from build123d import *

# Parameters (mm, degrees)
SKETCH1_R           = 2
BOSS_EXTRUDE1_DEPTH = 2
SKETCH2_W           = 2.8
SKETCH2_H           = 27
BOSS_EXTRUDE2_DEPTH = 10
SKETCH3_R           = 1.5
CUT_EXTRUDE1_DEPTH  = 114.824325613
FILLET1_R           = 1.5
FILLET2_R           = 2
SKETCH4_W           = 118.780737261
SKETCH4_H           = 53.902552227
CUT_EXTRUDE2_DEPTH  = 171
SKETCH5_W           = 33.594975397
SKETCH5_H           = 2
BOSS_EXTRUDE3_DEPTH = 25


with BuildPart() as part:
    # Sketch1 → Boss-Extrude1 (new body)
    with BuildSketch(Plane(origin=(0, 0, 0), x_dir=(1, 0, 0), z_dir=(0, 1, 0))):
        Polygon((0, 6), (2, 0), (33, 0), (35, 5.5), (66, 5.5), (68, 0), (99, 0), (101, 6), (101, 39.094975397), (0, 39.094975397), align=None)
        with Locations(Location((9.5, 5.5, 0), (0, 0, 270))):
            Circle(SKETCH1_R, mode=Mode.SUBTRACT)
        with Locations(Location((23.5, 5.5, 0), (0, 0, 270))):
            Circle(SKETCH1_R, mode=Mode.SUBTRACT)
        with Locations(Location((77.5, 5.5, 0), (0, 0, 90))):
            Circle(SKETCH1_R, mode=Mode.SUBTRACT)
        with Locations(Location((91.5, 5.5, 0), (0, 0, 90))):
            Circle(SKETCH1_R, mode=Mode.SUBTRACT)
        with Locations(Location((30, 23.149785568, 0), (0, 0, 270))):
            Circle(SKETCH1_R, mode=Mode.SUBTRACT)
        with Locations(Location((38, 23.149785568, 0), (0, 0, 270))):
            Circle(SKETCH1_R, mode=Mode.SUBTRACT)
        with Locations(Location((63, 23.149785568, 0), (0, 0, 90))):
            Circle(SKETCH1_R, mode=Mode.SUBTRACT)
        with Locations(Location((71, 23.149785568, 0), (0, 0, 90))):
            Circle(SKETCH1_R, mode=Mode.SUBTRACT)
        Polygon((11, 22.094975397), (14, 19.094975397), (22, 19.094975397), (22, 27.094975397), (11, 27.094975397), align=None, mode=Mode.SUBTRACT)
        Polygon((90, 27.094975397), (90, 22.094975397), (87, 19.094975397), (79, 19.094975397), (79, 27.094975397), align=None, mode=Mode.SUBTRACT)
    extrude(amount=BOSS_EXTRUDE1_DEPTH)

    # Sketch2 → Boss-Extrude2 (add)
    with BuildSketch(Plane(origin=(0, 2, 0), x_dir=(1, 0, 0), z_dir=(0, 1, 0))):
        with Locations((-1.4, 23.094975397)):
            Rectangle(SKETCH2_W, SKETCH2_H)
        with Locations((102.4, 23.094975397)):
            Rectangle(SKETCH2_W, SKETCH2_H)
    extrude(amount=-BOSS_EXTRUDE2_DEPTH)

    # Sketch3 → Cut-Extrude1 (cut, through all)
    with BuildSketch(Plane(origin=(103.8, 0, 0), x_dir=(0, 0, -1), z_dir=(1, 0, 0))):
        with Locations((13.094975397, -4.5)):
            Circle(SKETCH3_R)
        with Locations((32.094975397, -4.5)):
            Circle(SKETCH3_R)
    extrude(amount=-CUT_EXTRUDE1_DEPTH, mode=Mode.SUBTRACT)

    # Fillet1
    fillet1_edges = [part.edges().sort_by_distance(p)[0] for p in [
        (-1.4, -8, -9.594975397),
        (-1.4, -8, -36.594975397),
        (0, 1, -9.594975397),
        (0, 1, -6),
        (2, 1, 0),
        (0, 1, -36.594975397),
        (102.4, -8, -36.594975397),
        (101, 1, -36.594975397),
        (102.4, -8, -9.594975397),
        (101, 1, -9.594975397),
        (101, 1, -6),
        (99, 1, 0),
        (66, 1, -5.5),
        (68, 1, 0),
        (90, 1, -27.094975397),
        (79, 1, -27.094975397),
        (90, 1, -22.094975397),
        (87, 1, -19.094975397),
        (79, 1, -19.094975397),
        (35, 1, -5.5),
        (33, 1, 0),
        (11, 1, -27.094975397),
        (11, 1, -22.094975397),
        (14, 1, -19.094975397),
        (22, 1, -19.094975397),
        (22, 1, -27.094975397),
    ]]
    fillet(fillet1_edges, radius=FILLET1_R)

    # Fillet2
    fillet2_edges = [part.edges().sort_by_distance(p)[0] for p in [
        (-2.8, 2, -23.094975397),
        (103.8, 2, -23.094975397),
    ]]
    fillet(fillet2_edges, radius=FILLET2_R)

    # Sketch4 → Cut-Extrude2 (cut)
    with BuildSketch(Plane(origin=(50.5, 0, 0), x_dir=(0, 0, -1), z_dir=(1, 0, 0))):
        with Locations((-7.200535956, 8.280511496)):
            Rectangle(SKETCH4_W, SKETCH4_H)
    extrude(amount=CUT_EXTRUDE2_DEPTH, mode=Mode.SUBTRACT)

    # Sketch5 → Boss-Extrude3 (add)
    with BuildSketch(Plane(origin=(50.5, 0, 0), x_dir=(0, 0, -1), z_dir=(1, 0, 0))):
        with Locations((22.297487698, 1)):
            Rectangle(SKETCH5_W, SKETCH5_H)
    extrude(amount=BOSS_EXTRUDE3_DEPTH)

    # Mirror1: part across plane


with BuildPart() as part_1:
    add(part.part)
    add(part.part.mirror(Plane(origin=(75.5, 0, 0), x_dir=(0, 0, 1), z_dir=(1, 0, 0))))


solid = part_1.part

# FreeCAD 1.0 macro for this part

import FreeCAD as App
import Part
import Sketcher

V = App.Vector
Q = App.Units.Quantity


def edges_at(feature, points):
    """Names of the edges that pass closest to the given points."""
    edges = feature.Shape.Edges
    near = lambda p: min(range(len(edges)), key=lambda i: edges[i].distToShape(Part.Vertex(*p))[0])
    return sorted({f"Edge{near(p) + 1}" for p in points})


def add_polygon(sketch, points):
    """Adds a closed chain of lines whose ends are joined by coincident constraints."""
    first, n = sketch.GeometryCount, len(points)
    for a, b in zip(points, points[1:] + points[:1]):
        sketch.addGeometry(Part.LineSegment(App.Vector(*a, 0), App.Vector(*b, 0)), False)
    for i in range(n):
        sketch.addConstraint(Sketcher.Constraint("Coincident", first + i, 2, first + (i + 1) % n, 1))

doc = App.newDocument("Part")
body = doc.addObject("PartDesign::Body", "Body")

# Sketch on XZ plane
sketch1 = body.newObject("Sketcher::SketchObject", "Sketch")
sketch1.AttachmentSupport = (doc.getObject("XZ_Plane"), [""])
sketch1.MapMode = "FlatFace"
add_polygon(sketch1, [(0, -6), (2, 0), (33, 0), (35, -5.5), (66, -5.5), (68, 0), (99, 0), (101, -6), (101, -39.1), (0, -39.1)])  # lines 0-9
sketch1.addGeometry(Part.Circle(V(9.5, -5.5, 0), V(0, 0, 1), 2), False)  # 10
sketch1.addGeometry(Part.Circle(V(23.5, -5.5, 0), V(0, 0, 1), 2), False)  # 11
sketch1.addGeometry(Part.Circle(V(77.5, -5.5, 0), V(0, 0, 1), 2), False)  # 12
sketch1.addGeometry(Part.Circle(V(91.5, -5.5, 0), V(0, 0, 1), 2), False)  # 13
add_polygon(sketch1, [(14, -19.1), (11, -22.1), (11, -27.1), (22, -27.1), (22, -19.1)])  # lines 14-18
sketch1.addGeometry(Part.Circle(V(30, -23.1, 0), V(0, 0, 1), 2), False)  # 19
sketch1.addGeometry(Part.Circle(V(38, -23.1, 0), V(0, 0, 1), 2), False)  # 20
sketch1.addGeometry(Part.Circle(V(63, -23.1, 0), V(0, 0, 1), 2), False)  # 21
sketch1.addGeometry(Part.Circle(V(71, -23.1, 0), V(0, 0, 1), 2), False)  # 22
add_polygon(sketch1, [(79, -27.1), (90, -27.1), (90, -22.1), (87, -19.1), (79, -19.1)])  # lines 23-27
sketch1.addConstraint([
    Sketcher.Constraint("Horizontal", 1),
    Sketcher.Constraint("Horizontal", 3),
    Sketcher.Constraint("Horizontal", 5),
    Sketcher.Constraint("Vertical", 7),
    Sketcher.Constraint("Horizontal", 8),
    Sketcher.Constraint("Vertical", 9),
    Sketcher.Constraint("Vertical", 15),
    Sketcher.Constraint("Horizontal", 16),
    Sketcher.Constraint("Vertical", 17),
    Sketcher.Constraint("Horizontal", 18),
    Sketcher.Constraint("Horizontal", 23),
    Sketcher.Constraint("Vertical", 24),
    Sketcher.Constraint("Horizontal", 26),
    Sketcher.Constraint("Vertical", 27),
    Sketcher.Constraint("Equal", 10, 11),
    Sketcher.Constraint("Equal", 11, 12),
    Sketcher.Constraint("Equal", 12, 13),
    Sketcher.Constraint("Equal", 13, 19),
    Sketcher.Constraint("Equal", 19, 20),
    Sketcher.Constraint("Equal", 20, 21),
    Sketcher.Constraint("Equal", 21, 22),
    Sketcher.Constraint("PointOnObject", 0, 2, -1),
    Sketcher.Constraint("PointOnObject", 4, 2, -1),
    Sketcher.Constraint("PointOnObject", 8, 2, -2),
    Sketcher.Constraint("Perpendicular", 14, 25),
    Sketcher.Constraint("Horizontal", 10, 3, 11, 3),
    Sketcher.Constraint("Horizontal", 11, 3, 12, 3),
    Sketcher.Constraint("Horizontal", 12, 3, 13, 3),
    Sketcher.Constraint("Horizontal", 19, 3, 20, 3),
    Sketcher.Constraint("Horizontal", 20, 3, 21, 3),
    Sketcher.Constraint("Horizontal", 21, 3, 22, 3),
    Sketcher.Constraint("Horizontal", 13, 3, 2, 2),
    Sketcher.Constraint("Horizontal", 6, 2, 9, 2),
    Sketcher.Constraint("Horizontal", 16, 2, 23, 2),
    Sketcher.Constraint("Horizontal", 14, 2, 24, 2),
    Sketcher.Constraint("Horizontal", 18, 2, 25, 2),
    Sketcher.Constraint("Equal", 1, 3),
    Sketcher.Constraint("Equal", 3, 5),
    Sketcher.Constraint("Equal", 16, 23),
    Sketcher.Constraint("Equal", 18, 26),
    Sketcher.Constraint("Equal", 26, 17),
    Sketcher.Constraint("Equal", 2, 4),
    Sketcher.Constraint("Equal", 0, 6),
    Sketcher.Constraint("Diameter", 10, Q("4 mm")),
    Sketcher.Constraint("DistanceX", 1, 1, 1, 2, Q("31 mm")),
    Sketcher.Constraint("DistanceX", 8, 2, 8, 1, Q("101 mm")),
    Sketcher.Constraint("DistanceX", 16, 1, 16, 2, Q("11 mm")),
    Sketcher.Constraint("DistanceX", 18, 2, 18, 1, Q("8 mm")),
    Sketcher.Constraint("DistanceX", -1, 1, 19, 3, Q("30 mm")),
    Sketcher.Constraint("DistanceX", -1, 1, 20, 3, Q("38 mm")),
    Sketcher.Constraint("DistanceX", -1, 1, 21, 3, Q("63 mm")),
    Sketcher.Constraint("DistanceX", -1, 1, 22, 3, Q("71 mm")),
    Sketcher.Constraint("DistanceX", -1, 1, 0, 2, Q("2 mm")),
    Sketcher.Constraint("DistanceY", 6, 2, -1, 1, Q("6 mm")),
    Sketcher.Constraint("DistanceX", -1, 1, 14, 2, Q("11 mm")),
    Sketcher.Constraint("DistanceX", -1, 1, 23, 2, Q("90 mm")),
    Sketcher.Constraint("DistanceX", 10, 3, 11, 3, Q("14 mm")),
    Sketcher.Constraint("DistanceX", 11, 3, 12, 3, Q("54 mm")),
    Sketcher.Constraint("DistanceX", 12, 3, 13, 3, Q("14 mm")),
    Sketcher.Constraint("DistanceY", 8, 2, 14, 2, Q("17 mm")),
    Sketcher.Constraint("DistanceX", -1, 1, 10, 3, Q("9.5 mm")),
    Sketcher.Constraint("DistanceY", 10, 3, -1, 1, Q("5.5 mm")),
    Sketcher.Constraint("DistanceY", 7, 2, 7, 1, Q("33.094975 mm")),
    Sketcher.Constraint("DistanceY", 7, 2, 22, 3, Q("15.94519 mm")),
])
pad1 = body.newObject("PartDesign::Pad", "Pad")
pad1.Profile = sketch1
pad1.Length = 2
pad1.Reversed = True

# Sketch on XZ plane
sketch2 = body.newObject("Sketcher::SketchObject", "Sketch001")
sketch2.AttachmentSupport = (doc.getObject("XZ_Plane"), [""])
sketch2.MapMode = "FlatFace"
sketch2.AttachmentOffset = App.Placement(V(0, 0, -2), App.Rotation())
add_polygon(sketch2, [(-2.8, -36.6), (-2.8, -9.6), (0, -9.6), (0, -36.6)])  # lines 0-3
add_polygon(sketch2, [(101, -36.6), (101, -9.6), (103.8, -9.6), (103.8, -36.6)])  # lines 4-7
sketch2.addConstraint([
    Sketcher.Constraint("Vertical", 0),
    Sketcher.Constraint("Horizontal", 1),
    Sketcher.Constraint("Vertical", 2),
    Sketcher.Constraint("Horizontal", 3),
    Sketcher.Constraint("Vertical", 4),
    Sketcher.Constraint("Horizontal", 5),
    Sketcher.Constraint("Vertical", 6),
    Sketcher.Constraint("Horizontal", 7),
    Sketcher.Constraint("PointOnObject", 1, 2, -2),
    Sketcher.Constraint("Horizontal", 1, 2, 4, 2),
    Sketcher.Constraint("Horizontal", 3, 2, 6, 2),
    Sketcher.Constraint("Equal", 3, 5),
    Sketcher.Constraint("DistanceY", 0, 1, 0, 2, Q("27 mm")),
    Sketcher.Constraint("DistanceX", 1, 1, 1, 2, Q("2.8 mm")),
    Sketcher.Constraint("DistanceX", -1, 1, 4, 2, Q("101 mm")),
    Sketcher.Constraint("DistanceY", 0, 2, -1, 1, Q("9.594975 mm")),
])
pad2 = body.newObject("PartDesign::Pad", "Pad001")
pad2.Profile = sketch2
pad2.Length = 10

# Sketch on YZ plane
sketch3 = body.newObject("Sketcher::SketchObject", "Sketch002")
sketch3.AttachmentSupport = (doc.getObject("YZ_Plane"), [""])
sketch3.MapMode = "FlatFace"
sketch3.AttachmentOffset = App.Placement(V(0, 0, 103.8), App.Rotation())
sketch3.addGeometry([
    Part.Circle(V(-4.5, -13.1, 0), V(0, 0, 1), 1.5),
    Part.Circle(V(-4.5, -32.1, 0), V(0, 0, 1), 1.5),
], False)
sketch3.addConstraint([
    Sketcher.Constraint("Equal", 0, 1),
    Sketcher.Constraint("Vertical", 0, 3, 1, 3),
    Sketcher.Constraint("Diameter", 0, Q("3 mm")),
    Sketcher.Constraint("DistanceY", 1, 3, 0, 3, Q("19 mm")),
    Sketcher.Constraint("DistanceX", 0, 3, -1, 1, Q("4.5 mm")),
    Sketcher.Constraint("DistanceY", 0, 3, -1, 1, Q("13.094975 mm")),
])
pocket1 = body.newObject("PartDesign::Pocket", "Pocket")
pocket1.Profile = sketch3
pocket1.Type = "ThroughAll"
doc.recompute()

fillet = body.newObject("PartDesign::Fillet", "Fillet")
fillet.Base = (pocket1, edges_at(pocket1, [
    (-1.4, -8, -9.595),
    (-1.4, -8, -36.595),
    (0, 1, -9.595),
    (0, 1, -6),
    (2, 1, 0),
    (0, 1, -36.595),
    (102.4, -8, -36.595),
    (101, 1, -36.595),
    (102.4, -8, -9.595),
    (101, 1, -9.595),
    (101, 1, -6),
    (99, 1, 0),
    (66, 1, -5.5),
    (68, 1, 0),
    (90, 1, -27.095),
    (79, 1, -27.095),
    (90, 1, -22.095),
    (87, 1, -19.095),
    (79, 1, -19.095),
    (35, 1, -5.5),
    (33, 1, 0),
    (11, 1, -27.095),
    (11, 1, -22.095),
    (14, 1, -19.095),
    (22, 1, -19.095),
    (22, 1, -27.095),
]))
fillet.Radius = 1.5
doc.recompute()

fillet2 = body.newObject("PartDesign::Fillet", "Fillet001")
fillet2.Base = (fillet, edges_at(fillet, [(-2.8, 2, -23.095), (103.8, 2, -23.095)]))
fillet2.Radius = 2

# Sketch on YZ plane
sketch4 = body.newObject("Sketcher::SketchObject", "Sketch003")
sketch4.AttachmentSupport = (doc.getObject("YZ_Plane"), [""])
sketch4.MapMode = "FlatFace"
sketch4.AttachmentOffset = App.Placement(V(0, 0, 50.5), App.Rotation())
add_polygon(sketch4, [(35, 67), (-19, 67), (-19, -52), (35, -52)])  # lines 0-3
sketch4.addConstraint([
    Sketcher.Constraint("Horizontal", 0),
    Sketcher.Constraint("Vertical", 1),
    Sketcher.Constraint("Horizontal", 2),
    Sketcher.Constraint("Vertical", 3),
    Sketcher.Constraint("DistanceX", 0, 2, 0, 1, Q("53.902552 mm")),
    Sketcher.Constraint("DistanceY", 1, 2, 1, 1, Q("118.780737 mm")),
    Sketcher.Constraint("DistanceX", 0, 2, -1, 1, Q("18.670765 mm")),
    Sketcher.Constraint("DistanceY", -1, 1, 0, 2, Q("66.590905 mm")),
])
pocket2 = body.newObject("PartDesign::Pocket", "Pocket001")
pocket2.Profile = sketch4
pocket2.Length = 171
pocket2.Reversed = True

# Sketch on YZ plane
sketch5 = body.newObject("Sketcher::SketchObject", "Sketch004")
sketch5.AttachmentSupport = (doc.getObject("YZ_Plane"), [""])
sketch5.MapMode = "FlatFace"
sketch5.AttachmentOffset = App.Placement(V(0, 0, 50.5), App.Rotation())
add_polygon(sketch5, [(2, -5.5), (0, -5.5), (0, -39.1), (2, -39.1)])  # lines 0-3
sketch5.addConstraint([
    Sketcher.Constraint("Horizontal", 0),
    Sketcher.Constraint("Vertical", 1),
    Sketcher.Constraint("Horizontal", 2),
    Sketcher.Constraint("Vertical", 3),
    Sketcher.Constraint("PointOnObject", 0, 2, -2),
    Sketcher.Constraint("DistanceX", 0, 2, 0, 1, Q("2 mm")),
    Sketcher.Constraint("DistanceY", 0, 2, -1, 1, Q("5.5 mm")),
    Sketcher.Constraint("DistanceY", 1, 2, 1, 1, Q("33.594975 mm")),
])
pad3 = body.newObject("PartDesign::Pad", "Pad002")
pad3.Profile = sketch5
pad3.Length = 25
body2 = doc.addObject("PartDesign::Body", "Body001")
doc.recompute()

body2.BaseFeature = body
doc.recompute()

mirroring = doc.addObject("Part::Mirroring", "Mirroring")
mirroring.Source = body
mirroring.Base = V(75.5, 0, 0)
mirroring.Normal = V(1, 0, 0)
body3 = doc.addObject("PartDesign::Body", "Body002")
body3.BaseFeature = mirroring
boolean = body2.newObject("PartDesign::Boolean", "Boolean")
boolean.Type = "Fuse"
boolean.addObjects([body3])
doc.recompute()
mirroring.Visibility = False

doc.recompute()
